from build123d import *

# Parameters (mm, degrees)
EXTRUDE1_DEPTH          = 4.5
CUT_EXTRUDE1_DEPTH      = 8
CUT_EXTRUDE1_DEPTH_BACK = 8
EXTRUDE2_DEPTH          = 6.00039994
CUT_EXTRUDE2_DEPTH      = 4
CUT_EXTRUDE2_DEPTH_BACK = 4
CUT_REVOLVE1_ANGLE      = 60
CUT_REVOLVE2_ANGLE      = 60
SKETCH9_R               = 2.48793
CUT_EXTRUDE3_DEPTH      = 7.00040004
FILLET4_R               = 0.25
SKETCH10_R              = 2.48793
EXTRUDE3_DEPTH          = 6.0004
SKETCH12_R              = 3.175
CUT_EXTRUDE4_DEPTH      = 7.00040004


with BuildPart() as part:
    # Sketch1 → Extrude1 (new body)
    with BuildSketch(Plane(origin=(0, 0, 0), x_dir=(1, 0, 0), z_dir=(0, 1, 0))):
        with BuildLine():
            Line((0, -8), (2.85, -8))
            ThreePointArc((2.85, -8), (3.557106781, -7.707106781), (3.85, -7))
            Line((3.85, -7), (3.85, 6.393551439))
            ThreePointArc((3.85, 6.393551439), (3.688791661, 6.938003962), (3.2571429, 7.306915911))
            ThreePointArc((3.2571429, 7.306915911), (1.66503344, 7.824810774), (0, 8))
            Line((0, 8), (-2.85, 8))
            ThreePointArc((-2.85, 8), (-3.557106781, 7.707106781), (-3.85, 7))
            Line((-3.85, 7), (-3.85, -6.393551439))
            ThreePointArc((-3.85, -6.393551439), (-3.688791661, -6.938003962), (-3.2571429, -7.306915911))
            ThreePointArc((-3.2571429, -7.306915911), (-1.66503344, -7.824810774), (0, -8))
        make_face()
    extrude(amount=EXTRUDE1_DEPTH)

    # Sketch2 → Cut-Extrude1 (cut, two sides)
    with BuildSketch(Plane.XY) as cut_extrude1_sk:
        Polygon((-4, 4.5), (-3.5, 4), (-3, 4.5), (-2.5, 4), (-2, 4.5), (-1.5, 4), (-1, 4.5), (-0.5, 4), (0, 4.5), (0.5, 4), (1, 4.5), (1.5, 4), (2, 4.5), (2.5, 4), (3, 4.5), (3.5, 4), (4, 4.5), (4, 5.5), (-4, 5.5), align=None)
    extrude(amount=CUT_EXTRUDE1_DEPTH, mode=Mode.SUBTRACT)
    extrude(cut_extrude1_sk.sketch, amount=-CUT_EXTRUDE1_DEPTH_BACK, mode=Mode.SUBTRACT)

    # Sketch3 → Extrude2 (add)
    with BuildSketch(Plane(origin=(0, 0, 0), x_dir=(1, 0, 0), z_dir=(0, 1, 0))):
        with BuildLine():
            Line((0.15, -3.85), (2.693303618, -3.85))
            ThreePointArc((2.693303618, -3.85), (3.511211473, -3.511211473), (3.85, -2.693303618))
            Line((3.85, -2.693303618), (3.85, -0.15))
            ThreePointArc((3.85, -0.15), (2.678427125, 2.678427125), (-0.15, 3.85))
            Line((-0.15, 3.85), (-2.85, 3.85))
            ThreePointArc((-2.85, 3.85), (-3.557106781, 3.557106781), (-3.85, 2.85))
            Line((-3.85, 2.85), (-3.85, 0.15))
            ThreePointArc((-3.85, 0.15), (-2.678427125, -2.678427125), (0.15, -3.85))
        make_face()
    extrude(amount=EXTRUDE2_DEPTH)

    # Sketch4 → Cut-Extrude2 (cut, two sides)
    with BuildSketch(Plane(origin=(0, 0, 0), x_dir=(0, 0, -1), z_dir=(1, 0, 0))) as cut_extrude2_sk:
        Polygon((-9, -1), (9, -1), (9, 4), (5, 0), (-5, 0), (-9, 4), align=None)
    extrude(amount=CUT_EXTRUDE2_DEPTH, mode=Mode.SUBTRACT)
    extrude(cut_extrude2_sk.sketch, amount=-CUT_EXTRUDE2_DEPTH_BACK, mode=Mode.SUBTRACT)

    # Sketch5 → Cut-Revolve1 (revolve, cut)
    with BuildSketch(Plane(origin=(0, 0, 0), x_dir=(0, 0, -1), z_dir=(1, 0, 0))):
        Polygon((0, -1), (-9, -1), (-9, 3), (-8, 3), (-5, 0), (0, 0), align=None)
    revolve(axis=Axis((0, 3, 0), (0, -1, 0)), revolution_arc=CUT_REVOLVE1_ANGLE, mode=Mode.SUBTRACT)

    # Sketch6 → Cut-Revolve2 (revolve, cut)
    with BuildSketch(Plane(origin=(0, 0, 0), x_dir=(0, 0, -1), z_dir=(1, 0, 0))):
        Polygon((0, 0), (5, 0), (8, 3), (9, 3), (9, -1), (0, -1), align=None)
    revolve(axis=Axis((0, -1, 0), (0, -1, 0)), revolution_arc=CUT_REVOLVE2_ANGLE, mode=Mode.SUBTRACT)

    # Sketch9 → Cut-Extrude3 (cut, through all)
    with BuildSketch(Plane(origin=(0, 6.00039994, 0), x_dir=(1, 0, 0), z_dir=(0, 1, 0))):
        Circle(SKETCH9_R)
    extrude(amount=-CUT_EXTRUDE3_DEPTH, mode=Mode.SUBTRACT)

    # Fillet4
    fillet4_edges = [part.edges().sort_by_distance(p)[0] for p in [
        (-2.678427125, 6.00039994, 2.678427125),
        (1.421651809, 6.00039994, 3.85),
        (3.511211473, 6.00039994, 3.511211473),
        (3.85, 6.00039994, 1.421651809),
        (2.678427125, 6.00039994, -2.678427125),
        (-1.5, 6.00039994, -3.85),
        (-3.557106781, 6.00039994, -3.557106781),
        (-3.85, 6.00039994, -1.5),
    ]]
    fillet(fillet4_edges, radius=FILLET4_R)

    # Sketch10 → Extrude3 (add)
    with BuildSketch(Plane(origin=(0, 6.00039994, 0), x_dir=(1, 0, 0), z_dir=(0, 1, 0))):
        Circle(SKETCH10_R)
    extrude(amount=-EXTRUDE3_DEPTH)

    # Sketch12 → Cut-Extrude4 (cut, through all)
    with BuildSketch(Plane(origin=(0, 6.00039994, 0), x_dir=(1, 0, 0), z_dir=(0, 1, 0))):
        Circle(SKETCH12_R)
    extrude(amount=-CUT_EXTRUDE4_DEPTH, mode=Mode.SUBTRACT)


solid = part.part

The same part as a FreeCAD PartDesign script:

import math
import FreeCAD as App
import Part
import Sketcher
Q = App.Units.Quantity


def edges_at(feature, points):
    """Names of the edges that pass closest to the given points."""
    edges = feature.Shape.Edges
    near = lambda p: min(range(len(edges)), key=lambda i: edges[i].distToShape(Part.Vertex(*p))[0])
    return sorted({f"Edge{near(p) + 1}" for p in points})


def add_polygon(sketch, points):
    """Adds a closed chain of lines whose ends are joined by coincident constraints."""
    first, n = sketch.GeometryCount, len(points)
    for a, b in zip(points, points[1:] + points[:1]):
        sketch.addGeometry(Part.LineSegment(App.Vector(*a, 0), App.Vector(*b, 0)), False)
    for i in range(n):
        sketch.addConstraint(Sketcher.Constraint("Coincident", first + i, 2, first + (i + 1) % n, 1))

doc = App.newDocument("Part")
body = doc.addObject("PartDesign::Body", "Body")

# Sketch on XZ plane
sketch1 = body.newObject("Sketcher::SketchObject", "Sketch")
sketch1.AttachmentSupport = (doc.getObject("XZ_Plane"), [""])
sketch1.MapMode = "FlatFace"
sketch1.addGeometry(Part.LineSegment(App.Vector(0, 8, 0), App.Vector(2.9, 8, 0)), False)
sketch1.addGeometry(Part.ArcOfCircle(Part.Circle(App.Vector(2.8, 7, 0), App.Vector(0, 0, 1), 1), math.radians(0), math.radians(90)), False)
sketch1.addGeometry(Part.LineSegment(App.Vector(3.9, 7, 0), App.Vector(3.9, -6.4, 0)), False)
sketch1.addGeometry(Part.ArcOfCircle(Part.Circle(App.Vector(2.9, -6.4, 0), App.Vector(0, 0, 1), 1), math.radians(-66), math.radians(0)), False)
sketch1.addGeometry(Part.ArcOfCircle(Part.Circle(App.Vector(0, 0, 0), App.Vector(0, 0, 1), 8), math.radians(-90), math.radians(-66)), False)
sketch1.addGeometry(Part.LineSegment(App.Vector(0, -8, 0), App.Vector(-2.9, -8, 0)), False)
sketch1.addGeometry(Part.ArcOfCircle(Part.Circle(App.Vector(-2.8, -7, 0), App.Vector(0, 0, 1), 1), math.radians(-180), math.radians(-90)), False)
sketch1.addGeometry(Part.LineSegment(App.Vector(-3.9, -7, 0), App.Vector(-3.9, 6.4, 0)), False)
sketch1.addGeometry(Part.ArcOfCircle(Part.Circle(App.Vector(-2.9, 6.4, 0), App.Vector(0, 0, 1), 1), math.radians(114), math.radians(180)), False)
sketch1.addGeometry(Part.ArcOfCircle(Part.Circle(App.Vector(0, 0, 0), App.Vector(0, 0, 1), 8), math.radians(90), math.radians(114)), False)
sketch1.addConstraint(Sketcher.Constraint("Tangent", 0, 2, 1, 2))
sketch1.addConstraint(Sketcher.Constraint("Tangent", 1, 1, 2, 1))
sketch1.addConstraint(Sketcher.Constraint("Tangent", 2, 2, 3, 2))
sketch1.addConstraint(Sketcher.Constraint("Tangent", 3, 1, 4, 2))
sketch1.addConstraint(Sketcher.Constraint("Tangent", 4, 1, 5, 1))
sketch1.addConstraint(Sketcher.Constraint("Tangent", 5, 2, 6, 2))
sketch1.addConstraint(Sketcher.Constraint("Tangent", 6, 1, 7, 1))
sketch1.addConstraint(Sketcher.Constraint("Tangent", 7, 2, 8, 2))
sketch1.addConstraint(Sketcher.Constraint("Tangent", 8, 1, 9, 2))
sketch1.addConstraint(Sketcher.Constraint("Tangent", 9, 1, 0, 1))
sketch1.addConstraint(Sketcher.Constraint("Horizontal", 0))
sketch1.addConstraint(Sketcher.Constraint("Vertical", 2))
sketch1.addConstraint(Sketcher.Constraint("Horizontal", 5))
sketch1.addConstraint(Sketcher.Constraint("Vertical", 7))
sketch1.addConstraint(Sketcher.Constraint("Coincident", 4, 3, -1, 1))
sketch1.addConstraint(Sketcher.Constraint("Coincident", 9, 3, -1, 1))
sketch1.addConstraint(Sketcher.Constraint("Equal", 1, 3))
sketch1.addConstraint(Sketcher.Constraint("Equal", 3, 6))
sketch1.addConstraint(Sketcher.Constraint("Equal", 6, 8))
sketch1.addConstraint(Sketcher.Constraint("Equal", 4, 9))
sketch1.addConstraint(Sketcher.Constraint("Equal", 0, 5))
sketch1.addConstraint(Sketcher.Constraint("Radius", 1, Q("1 mm")))
sketch1.addConstraint(Sketcher.Constraint("Radius", 4, Q("8 mm")))
sketch1.addConstraint(Sketcher.Constraint("DistanceX", 0, 1, 0, 2, Q("2.85 mm")))
pad1 = body.newObject("PartDesign::Pad", "Pad")
pad1.Profile = sketch1
pad1.Length = 4.5
pad1.Reversed = True

# Sketch on XY plane
sketch2 = body.newObject("Sketcher::SketchObject", "Sketch001")
sketch2.AttachmentSupport = (doc.getObject("XY_Plane"), [""])
sketch2.MapMode = "FlatFace"
add_polygon(sketch2, [(-4, 4.5), (-3.5, 4), (-3, 4.5), (-2.5, 4), (-2, 4.5), (-1.5, 4), (-1, 4.5), (-0.5, 4), (0, 4.5), (0.5, 4), (1, 4.5), (1.5, 4), (2, 4.5), (2.5, 4), (3, 4.5), (3.5, 4), (4, 4.5), (4, 5.5), (-4, 5.5)])  # lines 0-18
sketch2.addConstraint(Sketcher.Constraint("Vertical", 16))
sketch2.addConstraint(Sketcher.Constraint("Horizontal", 17))
sketch2.addConstraint(Sketcher.Constraint("Vertical", 18))
sketch2.addConstraint(Sketcher.Constraint("Symmetric", 6, 2, 8, 2, -2))
sketch2.addConstraint(Sketcher.Constraint("Symmetric", 5, 2, 9, 2, -2))
sketch2.addConstraint(Sketcher.Constraint("Symmetric", 4, 2, 10, 2, -2))
sketch2.addConstraint(Sketcher.Constraint("Symmetric", 3, 2, 11, 2, -2))
sketch2.addConstraint(Sketcher.Constraint("Symmetric", 2, 2, 12, 2, -2))
sketch2.addConstraint(Sketcher.Constraint("Symmetric", 1, 2, 13, 2, -2))
sketch2.addConstraint(Sketcher.Constraint("Symmetric", 0, 2, 14, 2, -2))
sketch2.addConstraint(Sketcher.Constraint("Symmetric", 15, 2, 18, 2, -2))
sketch2.addConstraint(Sketcher.Constraint("PointOnObject", 7, 2, -2))
sketch2.addConstraint(Sketcher.Constraint("Perpendicular", 0, 1))
sketch2.addConstraint(Sketcher.Constraint("Perpendicular", 1, 2))
sketch2.addConstraint(Sketcher.Constraint("Perpendicular", 2, 3))
sketch2.addConstraint(Sketcher.Constraint("Perpendicular", 3, 4))
sketch2.addConstraint(Sketcher.Constraint("Perpendicular", 4, 5))
sketch2.addConstraint(Sketcher.Constraint("Perpendicular", 5, 6))
sketch2.addConstraint(Sketcher.Constraint("Perpendicular", 6, 7))
sketch2.addConstraint(Sketcher.Constraint("Perpendicular", 7, 8))
sketch2.addConstraint(Sketcher.Constraint("Horizontal", 0, 2, 2, 2))
sketch2.addConstraint(Sketcher.Constraint("Horizontal", 1, 2, 3, 2))
sketch2.addConstraint(Sketcher.Constraint("Horizontal", 2, 2, 4, 2))
sketch2.addConstraint(Sketcher.Constraint("Horizontal", 3, 2, 5, 2))
sketch2.addConstraint(Sketcher.Constraint("Horizontal", 4, 2, 6, 2))
sketch2.addConstraint(Sketcher.Constraint("Horizontal", 5, 2, 7, 2))
sketch2.addConstraint(Sketcher.Constraint("Horizontal", 13, 2, 15, 2))
sketch2.addConstraint(Sketcher.Constraint("DistanceX", 17, 2, 17, 1, Q("8 mm")))
sketch2.addConstraint(Sketcher.Constraint("DistanceY", 16, 1, 16, 2, Q("1 mm")))
sketch2.addConstraint(Sketcher.Constraint("DistanceY", -1, 1, 0, 2, Q("4 mm")))
pocket1 = body.newObject("PartDesign::Pocket", "Pocket")
pocket1.Profile = sketch2
pocket1.Type = "ThroughAll"
pocket1.Midplane = True

# Sketch on XZ plane
sketch3 = body.newObject("Sketcher::SketchObject", "Sketch002")
sketch3.AttachmentSupport = (doc.getObject("XZ_Plane"), [""])
sketch3.MapMode = "FlatFace"
sketch3.addGeometry(Part.LineSegment(App.Vector(0.1, 3.9, 0), App.Vector(2.7, 3.9, 0)), False)
sketch3.addGeometry(Part.ArcOfCircle(Part.Circle(App.Vector(2.7, 2.7, 0), App.Vector(0, 0, 1), 1.2), math.radians(0), math.radians(90)), False)
sketch3.addGeometry(Part.LineSegment(App.Vector(3.9, 2.7, 0), App.Vector(3.9, 0.1, 0)), False)
sketch3.addGeometry(Part.ArcOfCircle(Part.Circle(App.Vector(-0.1, 0.1, 0), App.Vector(0, 0, 1), 4), math.radians(-90), math.radians(0)), False)
sketch3.addGeometry(Part.LineSegment(App.Vector(-0.1, -3.9, 0), App.Vector(-2.9, -3.9, 0)), False)
sketch3.addGeometry(Part.ArcOfCircle(Part.Circle(App.Vector(-2.8, -2.8, 0), App.Vector(0, 0, 1), 1), math.radians(-180), math.radians(-90)), False)
sketch3.addGeometry(Part.LineSegment(App.Vector(-3.9, -2.9, 0), App.Vector(-3.9, -0.1, 0)), False)
sketch3.addGeometry(Part.ArcOfCircle(Part.Circle(App.Vector(0.1, -0.1, 0), App.Vector(0, 0, 1), 4), math.radians(90), math.radians(180)), False)
sketch3.addConstraint(Sketcher.Constraint("Tangent", 0, 2, 1, 2))
sketch3.addConstraint(Sketcher.Constraint("Tangent", 1, 1, 2, 1))
sketch3.addConstraint(Sketcher.Constraint("Tangent", 2, 2, 3, 2))
sketch3.addConstraint(Sketcher.Constraint("Tangent", 3, 1, 4, 1))
sketch3.addConstraint(Sketcher.Constraint("Tangent", 4, 2, 5, 2))
sketch3.addConstraint(Sketcher.Constraint("Tangent", 5, 1, 6, 1))
sketch3.addConstraint(Sketcher.Constraint("Tangent", 6, 2, 7, 2))
sketch3.addConstraint(Sketcher.Constraint("Tangent", 7, 1, 0, 1))
sketch3.addConstraint(Sketcher.Constraint("Horizontal", 0))
sketch3.addConstraint(Sketcher.Constraint("Vertical", 2))
sketch3.addConstraint(Sketcher.Constraint("Horizontal", 4))
sketch3.addConstraint(Sketcher.Constraint("Vertical", 6))
sketch3.addConstraint(Sketcher.Constraint("Equal", 3, 7))
sketch3.addConstraint(Sketcher.Constraint("Symmetric", 3, 3, 7, 3, -1, 1))
sketch3.addConstraint(Sketcher.Constraint("Equal", 0, 2))
sketch3.addConstraint(Sketcher.Constraint("Radius", 3, Q("4 mm")))
sketch3.addConstraint(Sketcher.Constraint("Radius", 5, Q("1 mm")))
sketch3.addConstraint(Sketcher.Constraint("DistanceX", 4, 2, 4, 1, Q("2.7 mm")))
sketch3.addConstraint(Sketcher.Constraint("Radius", 1, Q("1.156696 mm")))
pad2 = body.newObject("PartDesign::Pad", "Pad001")
pad2.Profile = sketch3
pad2.Length = 6.0004
pad2.Reversed = True

# Sketch on YZ plane
sketch4 = body.newObject("Sketcher::SketchObject", "Sketch003")
sketch4.AttachmentSupport = (doc.getObject("YZ_Plane"), [""])
sketch4.MapMode = "FlatFace"
add_polygon(sketch4, [(-1, 9), (-1, -9), (4, -9), (0, -5), (0, 5), (4, 9)])  # lines 0-5
sketch4.addConstraint(Sketcher.Constraint("Vertical", 0))
sketch4.addConstraint(Sketcher.Constraint("Horizontal", 1))
sketch4.addConstraint(Sketcher.Constraint("Vertical", 3))
sketch4.addConstraint(Sketcher.Constraint("Horizontal", 5))
sketch4.addConstraint(Sketcher.Constraint("Symmetric", 2, 2, 3, 2, -1, 1))
sketch4.addConstraint(Sketcher.Constraint("Symmetric", 1, 2, 4, 2, -1))
sketch4.addConstraint(Sketcher.Constraint("Perpendicular", 2, 4))
sketch4.addConstraint(Sketcher.Constraint("DistanceX", 1, 1, 1, 2, Q("5 mm")))
sketch4.addConstraint(Sketcher.Constraint("DistanceY", 0, 2, 0, 1, Q("18 mm")))
sketch4.addConstraint(Sketcher.Constraint("DistanceY", 3, 1, 3, 2, Q("10 mm")))
pocket2 = body.newObject("PartDesign::Pocket", "Pocket001")
pocket2.Profile = sketch4
pocket2.Type = "ThroughAll"
pocket2.Midplane = True

# Sketch on YZ plane
sketch5 = body.newObject("Sketcher::SketchObject", "Sketch004")
sketch5.AttachmentSupport = (doc.getObject("YZ_Plane"), [""])
sketch5.MapMode = "FlatFace"
add_polygon(sketch5, [(-1, 9), (-1, 0), (0, 0), (0, 5), (3, 8), (3, 9)])  # lines 0-5
sketch5.addConstraint(Sketcher.Constraint("Vertical", 0))
sketch5.addConstraint(Sketcher.Constraint("Horizontal", 1))
sketch5.addConstraint(Sketcher.Constraint("Vertical", 2))
sketch5.addConstraint(Sketcher.Constraint("Vertical", 4))
sketch5.addConstraint(Sketcher.Constraint("Horizontal", 5))
sketch5.addConstraint(Sketcher.Constraint("Coincident", 1, 2, -1, 1))
sketch5.addConstraint(Sketcher.Constraint("Equal", 1, 4))
sketch5.addConstraint(Sketcher.Constraint("DistanceX", 1, 1, 1, 2, Q("1 mm")))
sketch5.addConstraint(Sketcher.Constraint("DistanceX", 5, 2, 5, 1, Q("4 mm")))
sketch5.addConstraint(Sketcher.Constraint("DistanceY", 0, 2, 0, 1, Q("9 mm")))
sketch5.addConstraint(Sketcher.Constraint("DistanceY", 2, 1, 2, 2, Q("5 mm")))
groove = body.newObject("PartDesign::Groove", "Groove")
groove.Profile = sketch5
groove.ReferenceAxis = (sketch5, ["H_Axis"])
groove.Angle = 60
groove.Reversed = True

# Sketch on YZ plane
sketch6 = body.newObject("Sketcher::SketchObject", "Sketch005")
sketch6.AttachmentSupport = (doc.getObject("YZ_Plane"), [""])
sketch6.MapMode = "FlatFace"
add_polygon(sketch6, [(0, -5), (0, 0), (-1, 0), (-1, -9), (3, -9), (3, -8)])  # lines 0-5
sketch6.addConstraint(Sketcher.Constraint("Vertical", 0))
sketch6.addConstraint(Sketcher.Constraint("Horizontal", 1))
sketch6.addConstraint(Sketcher.Constraint("Vertical", 2))
sketch6.addConstraint(Sketcher.Constraint("Horizontal", 3))
sketch6.addConstraint(Sketcher.Constraint("Vertical", 4))
sketch6.addConstraint(Sketcher.Constraint("Coincident", 0, 2, -1, 1))
sketch6.addConstraint(Sketcher.Constraint("Equal", 1, 4))
sketch6.addConstraint(Sketcher.Constraint("DistanceX", 1, 2, 1, 1, Q("1 mm")))
sketch6.addConstraint(Sketcher.Constraint("DistanceX", 3, 1, 3, 2, Q("4 mm")))
sketch6.addConstraint(Sketcher.Constraint("DistanceY", 0, 1, 0, 2, Q("5 mm")))
sketch6.addConstraint(Sketcher.Constraint("DistanceY", 2, 2, 2, 1, Q("9 mm")))
groove2 = body.newObject("PartDesign::Groove", "Groove001")
groove2.Profile = sketch6
groove2.ReferenceAxis = (sketch6, ["H_Axis"])
groove2.Angle = 60
groove2.Reversed = True

# Sketch on XZ plane
sketch7 = body.newObject("Sketcher::SketchObject", "Sketch006")
sketch7.AttachmentSupport = (doc.getObject("XZ_Plane"), [""])
sketch7.MapMode = "FlatFace"
sketch7.AttachmentOffset = App.Placement(App.Vector(0, 0, -6.0004), App.Rotation())
sketch7.addGeometry(Part.Circle(App.Vector(0, 0, 0), App.Vector(0, 0, 1), 2.5), False)
sketch7.addConstraint(Sketcher.Constraint("Coincident", 0, 3, -1, 1))
sketch7.addConstraint(Sketcher.Constraint("Diameter", 0, Q("4.97586 mm")))
pocket3 = body.newObject("PartDesign::Pocket", "Pocket002")
pocket3.Profile = sketch7
pocket3.Type = "ThroughAll"
pocket3.Reversed = True
doc.recompute()

fillet = body.newObject("PartDesign::Fillet", "Fillet")
fillet.Base = (pocket3, edges_at(pocket3, [
    (-2.678, 6, 2.678),
    (1.422, 6, 3.85),
    (3.511, 6, 3.511),
    (3.85, 6, 1.422),
    (2.678, 6, -2.678),
    (-1.5, 6, -3.85),
    (-3.557, 6, -3.557),
    (-3.85, 6, -1.5),
]))
fillet.Radius = 0.25

# Sketch on XZ plane
sketch8 = body.newObject("Sketcher::SketchObject", "Sketch007")
sketch8.AttachmentSupport = (doc.getObject("XZ_Plane"), [""])
sketch8.MapMode = "FlatFace"
sketch8.AttachmentOffset = App.Placement(App.Vector(0, 0, -6.0004), App.Rotation())
sketch8.addGeometry(Part.Circle(App.Vector(0, 0, 0), App.Vector(0, 0, 1), 2.5), False)
sketch8.addConstraint(Sketcher.Constraint("Coincident", 0, 3, -1, 1))
sketch8.addConstraint(Sketcher.Constraint("Diameter", 0, Q("4.97586 mm")))
pad3 = body.newObject("PartDesign::Pad", "Pad002")
pad3.Profile = sketch8
pad3.Length = 6.0004

# Sketch on XZ plane
sketch9 = body.newObject("Sketcher::SketchObject", "Sketch008")
sketch9.AttachmentSupport = (doc.getObject("XZ_Plane"), [""])
sketch9.MapMode = "FlatFace"
sketch9.AttachmentOffset = App.Placement(App.Vector(0, 0, -6.0004), App.Rotation())
sketch9.addGeometry(Part.Circle(App.Vector(0, 0, 0), App.Vector(0, 0, 1), 3.2), False)
sketch9.addConstraint(Sketcher.Constraint("Coincident", 0, 3, -1, 1))
sketch9.addConstraint(Sketcher.Constraint("Diameter", 0, Q("6.35 mm")))
pocket4 = body.newObject("PartDesign::Pocket", "Pocket003")
pocket4.Profile = sketch9
pocket4.Type = "ThroughAll"
pocket4.Reversed = True

doc.recompute()
